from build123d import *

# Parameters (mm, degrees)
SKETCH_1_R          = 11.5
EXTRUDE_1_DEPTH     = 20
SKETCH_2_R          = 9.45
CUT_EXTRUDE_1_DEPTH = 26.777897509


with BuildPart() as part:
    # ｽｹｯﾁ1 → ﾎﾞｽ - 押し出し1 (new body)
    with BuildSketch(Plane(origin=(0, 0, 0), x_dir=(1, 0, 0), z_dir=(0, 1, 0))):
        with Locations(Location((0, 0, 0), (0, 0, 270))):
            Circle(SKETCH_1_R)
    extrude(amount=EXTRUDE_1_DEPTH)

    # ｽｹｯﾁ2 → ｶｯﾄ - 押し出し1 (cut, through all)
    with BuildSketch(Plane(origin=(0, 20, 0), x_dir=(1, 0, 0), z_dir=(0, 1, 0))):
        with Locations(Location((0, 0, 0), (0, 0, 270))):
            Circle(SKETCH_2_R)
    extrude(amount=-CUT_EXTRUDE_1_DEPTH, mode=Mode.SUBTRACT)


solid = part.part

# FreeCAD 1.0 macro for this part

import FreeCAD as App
import Part
import Sketcher
from FreeCAD import Vector
Q = App.Units.Quantity

doc = App.newDocument("Part")
body = doc.addObject("PartDesign::Body", "Body")

sketch1 = doc.addObject("Sketcher::SketchObject", "Sketch")
body.addObject(sketch1)
sketch1.AttachmentSupport = (doc.XZ_Plane, [""])
sketch1.MapMode = "FlatFace"
sketch1.addGeometry(Part.Circle(Vector(0, 0, 0), Vector(0, 0, 1), 12), False)
sketch1.addConstraint(Sketcher.Constraint("Coincident", 0, 3, -1, 1))
sketch1.addConstraint(Sketcher.Constraint("Diameter", 0, Q("23 mm")))
pad1 = doc.addObject("PartDesign::Pad", "Pad")
body.addObject(pad1)
pad1.Profile = sketch1
pad1.Length = 20
pad1.Reversed = True

sketch2 = doc.addObject("Sketcher::SketchObject", "Sketch001")
body.addObject(sketch2)
sketch2.AttachmentSupport = (doc.XZ_Plane, [""])
sketch2.MapMode = "FlatFace"
sketch2.AttachmentOffset = App.Placement(Vector(0, 0, -20), App.Rotation())
sketch2.addGeometry(Part.Circle(Vector(0, 0, 0), Vector(0, 0, 1), 9), False)
sketch2.addConstraint(Sketcher.Constraint("Coincident", 0, 3, -1, 1))
sketch2.addConstraint(Sketcher.Constraint("Diameter", 0, Q("18.9 mm")))
pocket1 = doc.addObject("PartDesign::Pocket", "Pocket")
body.addObject(pocket1)
pocket1.Profile = sketch2
pocket1.Type = "ThroughAll"
pocket1.Reversed = True

doc.recompute()
